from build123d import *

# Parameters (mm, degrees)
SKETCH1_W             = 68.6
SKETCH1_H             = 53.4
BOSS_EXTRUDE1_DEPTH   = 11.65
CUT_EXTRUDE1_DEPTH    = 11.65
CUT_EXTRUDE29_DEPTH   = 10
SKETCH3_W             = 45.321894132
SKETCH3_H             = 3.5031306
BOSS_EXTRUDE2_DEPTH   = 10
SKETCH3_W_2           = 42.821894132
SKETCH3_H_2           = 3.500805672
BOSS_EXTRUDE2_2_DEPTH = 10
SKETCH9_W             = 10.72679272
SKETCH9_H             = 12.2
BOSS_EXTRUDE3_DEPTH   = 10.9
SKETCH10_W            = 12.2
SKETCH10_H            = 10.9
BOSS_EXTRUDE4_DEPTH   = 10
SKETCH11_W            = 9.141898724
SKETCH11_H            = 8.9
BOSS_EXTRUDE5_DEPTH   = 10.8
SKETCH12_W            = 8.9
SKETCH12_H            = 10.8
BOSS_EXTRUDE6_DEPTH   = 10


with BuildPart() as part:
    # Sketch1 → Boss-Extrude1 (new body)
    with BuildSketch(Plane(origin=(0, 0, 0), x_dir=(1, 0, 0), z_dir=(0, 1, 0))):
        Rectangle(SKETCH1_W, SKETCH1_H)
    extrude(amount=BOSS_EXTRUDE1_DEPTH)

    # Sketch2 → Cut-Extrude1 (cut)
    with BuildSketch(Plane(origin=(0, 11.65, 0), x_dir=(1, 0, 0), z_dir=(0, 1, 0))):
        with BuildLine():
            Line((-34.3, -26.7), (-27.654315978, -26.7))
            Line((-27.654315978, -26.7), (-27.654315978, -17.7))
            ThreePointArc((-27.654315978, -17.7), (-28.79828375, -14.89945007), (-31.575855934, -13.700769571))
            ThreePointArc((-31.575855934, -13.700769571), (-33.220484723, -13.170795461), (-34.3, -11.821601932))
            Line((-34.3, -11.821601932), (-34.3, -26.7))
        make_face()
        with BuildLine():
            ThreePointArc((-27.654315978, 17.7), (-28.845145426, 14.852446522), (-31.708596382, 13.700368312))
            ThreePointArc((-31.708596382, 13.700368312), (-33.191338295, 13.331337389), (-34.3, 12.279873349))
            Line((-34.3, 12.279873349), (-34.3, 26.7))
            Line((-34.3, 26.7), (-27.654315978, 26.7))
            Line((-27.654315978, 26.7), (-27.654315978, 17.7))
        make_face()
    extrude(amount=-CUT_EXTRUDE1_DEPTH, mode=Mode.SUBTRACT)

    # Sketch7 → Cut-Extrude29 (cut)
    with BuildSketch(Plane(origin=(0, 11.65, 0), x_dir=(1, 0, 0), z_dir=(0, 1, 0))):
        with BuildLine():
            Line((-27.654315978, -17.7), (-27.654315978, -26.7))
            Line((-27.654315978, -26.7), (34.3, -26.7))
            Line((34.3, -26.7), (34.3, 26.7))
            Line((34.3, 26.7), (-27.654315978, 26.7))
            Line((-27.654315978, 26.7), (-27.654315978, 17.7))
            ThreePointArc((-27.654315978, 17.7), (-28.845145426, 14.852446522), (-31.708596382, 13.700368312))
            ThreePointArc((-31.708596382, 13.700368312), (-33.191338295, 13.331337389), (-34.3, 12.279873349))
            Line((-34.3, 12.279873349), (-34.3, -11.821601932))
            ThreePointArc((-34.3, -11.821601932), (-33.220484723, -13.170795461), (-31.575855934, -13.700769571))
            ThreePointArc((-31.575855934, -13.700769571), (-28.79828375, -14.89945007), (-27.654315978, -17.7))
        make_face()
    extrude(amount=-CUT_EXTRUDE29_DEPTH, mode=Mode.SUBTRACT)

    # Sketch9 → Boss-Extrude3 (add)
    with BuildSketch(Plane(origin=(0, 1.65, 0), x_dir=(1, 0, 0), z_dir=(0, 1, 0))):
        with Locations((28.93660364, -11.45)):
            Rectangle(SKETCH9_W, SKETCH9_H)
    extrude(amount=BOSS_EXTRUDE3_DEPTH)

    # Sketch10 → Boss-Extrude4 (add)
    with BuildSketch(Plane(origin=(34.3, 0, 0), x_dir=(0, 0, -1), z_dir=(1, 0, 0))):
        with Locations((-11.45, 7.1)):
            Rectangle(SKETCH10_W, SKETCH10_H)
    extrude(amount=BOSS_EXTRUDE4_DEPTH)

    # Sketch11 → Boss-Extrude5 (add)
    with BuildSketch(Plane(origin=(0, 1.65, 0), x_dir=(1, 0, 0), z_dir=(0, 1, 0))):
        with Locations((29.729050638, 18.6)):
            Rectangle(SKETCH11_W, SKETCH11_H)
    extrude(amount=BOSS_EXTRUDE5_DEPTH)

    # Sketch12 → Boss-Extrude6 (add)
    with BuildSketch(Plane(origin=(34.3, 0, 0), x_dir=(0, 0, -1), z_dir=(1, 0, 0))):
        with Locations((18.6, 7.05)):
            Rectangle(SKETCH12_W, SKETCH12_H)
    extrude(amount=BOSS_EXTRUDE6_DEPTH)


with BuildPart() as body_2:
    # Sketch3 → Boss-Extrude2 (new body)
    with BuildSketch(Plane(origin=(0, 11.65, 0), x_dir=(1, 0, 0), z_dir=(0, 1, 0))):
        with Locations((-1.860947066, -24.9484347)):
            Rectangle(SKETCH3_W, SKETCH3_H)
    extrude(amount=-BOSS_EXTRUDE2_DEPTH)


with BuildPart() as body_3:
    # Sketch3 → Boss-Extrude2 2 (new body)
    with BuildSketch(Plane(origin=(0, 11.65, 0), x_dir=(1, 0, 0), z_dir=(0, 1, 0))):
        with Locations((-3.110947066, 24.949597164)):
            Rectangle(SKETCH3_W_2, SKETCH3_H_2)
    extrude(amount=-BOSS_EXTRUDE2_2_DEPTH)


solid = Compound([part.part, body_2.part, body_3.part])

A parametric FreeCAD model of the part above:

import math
import FreeCAD as App
import Part
import Sketcher
from FreeCAD import Vector
Q = App.Units.Quantity

doc = App.newDocument("Part")
params = doc.addObject("Spreadsheet::Sheet", "Params")
for row, (alias, value) in enumerate([
    ("sketch1_width", "68.6 mm"),
    ("sketch1_height", "53.4 mm"),
    ("pad1_length", "11.65 mm"),
    ("sketch2_radius", "4 mm"),
    ("sketch2_radius2", "3 mm"),
    ("sketch2_height", "9 mm"),
    ("pocket1_length", "11.65 mm"),
    ("sketch3_radius", "4 mm"),
    ("sketch3_radius2", "3 mm"),
    ("sketch3_height", "9 mm"),
    ("sketch3_height2", "53.4 mm"),
    ("pocket2_length", "10 mm"),
    ("sketch4_height", "12.2 mm"),
    ("pad2_length", "10.9 mm"),
    ("sketch5_width", "10.9 mm"),
    ("sketch5_height", "12.2 mm"),
    ("pad3_length", "10 mm"),
    ("sketch6_height", "8.9 mm"),
    ("pad4_length", "10.8 mm"),
    ("sketch7_width", "10.8 mm"),
    ("sketch7_height", "8.9 mm"),
    ("pad5_length", "10 mm"),
    ("pad6_length", "10 mm"),
    ("pad7_length", "10 mm"),
], start=1):
    params.set(f"A{row}", alias)
    params.set(f"B{row}", "=" + value)
    params.setAlias(f"B{row}", alias)

body = doc.addObject("PartDesign::Body", "Body")

# Sketch on XZ plane
sketch1 = body.newObject("Sketcher::SketchObject", "Sketch")
sketch1.AttachmentSupport = (doc.getObject("XZ_Plane"), [""])
sketch1.MapMode = "FlatFace"
sketch1.addGeometry(Part.LineSegment(Vector(-34, -27, 0), Vector(-34, 27, 0)), False)
sketch1.addGeometry(Part.LineSegment(Vector(-34, 27, 0), Vector(34, 27, 0)), False)
sketch1.addGeometry(Part.LineSegment(Vector(34, 27, 0), Vector(34, -27, 0)), False)
sketch1.addGeometry(Part.LineSegment(Vector(34, -27, 0), Vector(-34, -27, 0)), False)
sketch1.addConstraint(Sketcher.Constraint("Coincident", 0, 2, 1, 1))
sketch1.addConstraint(Sketcher.Constraint("Coincident", 1, 2, 2, 1))
sketch1.addConstraint(Sketcher.Constraint("Coincident", 2, 2, 3, 1))
sketch1.addConstraint(Sketcher.Constraint("Coincident", 3, 2, 0, 1))
sketch1.addConstraint(Sketcher.Constraint("Vertical", 0))
sketch1.addConstraint(Sketcher.Constraint("Horizontal", 1))
sketch1.addConstraint(Sketcher.Constraint("Vertical", 2))
sketch1.addConstraint(Sketcher.Constraint("Horizontal", 3))
sketch1.addConstraint(Sketcher.Constraint("Symmetric", 0, 2, 2, 2, -1, 1))
sketch1.addConstraint(Sketcher.Constraint("DistanceX", 1, 1, 1, 2, Q("68.6 mm")))
sketch1.addConstraint(Sketcher.Constraint("DistanceY", 0, 1, 0, 2, Q("53.4 mm")))
sketch1.setExpression("Constraints[9]", "Params.sketch1_width")
sketch1.setExpression("Constraints[10]", "Params.sketch1_height")
pad1 = body.newObject("PartDesign::Pad", "Pad")
pad1.Profile = sketch1
pad1.setExpression("Length", "Params.pad1_length")
pad1.Reversed = True

# Sketch on XZ plane
sketch2 = body.newObject("Sketcher::SketchObject", "Sketch001")
sketch2.AttachmentSupport = (doc.getObject("XZ_Plane"), [""])
sketch2.MapMode = "FlatFace"
sketch2.AttachmentOffset = App.Placement(Vector(0, 0, -11.65), App.Rotation())
sketch2.addGeometry(Part.LineSegment(Vector(-34.3, 26.7, 0), Vector(-27.7, 26.7, 0)), False)
sketch2.addGeometry(Part.LineSegment(Vector(-27.7, 26.7, 0), Vector(-27.7, 17.7, 0)), False)
sketch2.addGeometry(Part.ArcOfCircle(Part.Circle(Vector(-31.7, 17.7, 0), Vector(0, 0, 1), 4), math.radians(-89), math.radians(0)), False)
sketch2.addGeometry(Part.ArcOfCircle(Part.Circle(Vector(-31.5, 10.7, 0), Vector(0, 0, 1), 3), math.radians(91), math.radians(158)), False)
sketch2.addGeometry(Part.LineSegment(Vector(-34.3, 11.8, 0), Vector(-34.3, 26.7, 0)), False)
sketch2.addGeometry(Part.ArcOfCircle(Part.Circle(Vector(-31.7, -17.7, 0), Vector(0, 0, 1), 4), math.radians(0), math.radians(91)), False)
sketch2.addGeometry(Part.LineSegment(Vector(-27.7, -17.7, 0), Vector(-27.7, -26.7, 0)), False)
sketch2.addGeometry(Part.LineSegment(Vector(-27.7, -26.7, 0), Vector(-34.3, -26.7, 0)), False)
sketch2.addGeometry(Part.LineSegment(Vector(-34.3, -26.7, 0), Vector(-34.3, -12.3, 0)), False)
sketch2.addGeometry(Part.ArcOfCircle(Part.Circle(Vector(-31.7, -10.7, 0), Vector(0, 0, 1), 3), math.radians(-148), math.radians(-89)), False)
sketch2.addConstraint(Sketcher.Constraint("Coincident", 0, 2, 1, 1))
sketch2.addConstraint(Sketcher.Constraint("Tangent", 1, 2, 2, 2))
sketch2.addConstraint(Sketcher.Constraint("Tangent", 2, 1, 3, 1))
sketch2.addConstraint(Sketcher.Constraint("Coincident", 3, 2, 4, 1))
sketch2.addConstraint(Sketcher.Constraint("Coincident", 4, 2, 0, 1))
sketch2.addConstraint(Sketcher.Constraint("Tangent", 5, 1, 6, 1))
sketch2.addConstraint(Sketcher.Constraint("Coincident", 6, 2, 7, 1))
sketch2.addConstraint(Sketcher.Constraint("Coincident", 7, 2, 8, 1))
sketch2.addConstraint(Sketcher.Constraint("Coincident", 8, 2, 9, 1))
sketch2.addConstraint(Sketcher.Constraint("Tangent", 9, 2, 5, 2))
sketch2.addConstraint(Sketcher.Constraint("Horizontal", 0))
sketch2.addConstraint(Sketcher.Constraint("Vertical", 1))
sketch2.addConstraint(Sketcher.Constraint("Vertical", 4))
sketch2.addConstraint(Sketcher.Constraint("Vertical", 6))
sketch2.addConstraint(Sketcher.Constraint("Horizontal", 7))
sketch2.addConstraint(Sketcher.Constraint("Vertical", 8))
sketch2.addConstraint(Sketcher.Constraint("Equal", 2, 5))
sketch2.addConstraint(Sketcher.Constraint("Equal", 3, 9))
sketch2.addConstraint(Sketcher.Constraint("Symmetric", 2, 3, 5, 3, -1))
sketch2.addConstraint(Sketcher.Constraint("Symmetric", 4, 2, 7, 2, -1))
sketch2.addConstraint(Sketcher.Constraint("Radius", 2, Q("4 mm")))
sketch2.addConstraint(Sketcher.Constraint("Radius", 3, Q("3 mm")))
sketch2.addConstraint(Sketcher.Constraint("DistanceY", 1, 2, 1, 1, Q("9 mm")))
sketch2.addConstraint(Sketcher.Constraint("DistanceY", -1, 1, 2, 3, Q("17.7 mm")))
sketch2.addConstraint(Sketcher.Constraint("DistanceX", 3, 2, -1, 1, Q("34.3 mm")))
sketch2.addConstraint(Sketcher.Constraint("DistanceY", 4, 1, 4, 2, Q("14.878398 mm")))
sketch2.addConstraint(Sketcher.Constraint("DistanceX", 0, 1, 0, 2, Q("6.645684 mm")))
sketch2.addConstraint(Sketcher.Constraint("DistanceY", 8, 1, 8, 2, Q("14.420127 mm")))
sketch2.setExpression("Constraints[20]", "Params.sketch2_radius")
sketch2.setExpression("Constraints[21]", "Params.sketch2_radius2")
sketch2.setExpression("Constraints[22]", "Params.sketch2_height")
pocket1 = body.newObject("PartDesign::Pocket", "Pocket")
pocket1.Profile = sketch2
pocket1.setExpression("Length", "Params.pocket1_length")
pocket1.Reversed = True

# Sketch on XZ plane
sketch3 = body.newObject("Sketcher::SketchObject", "Sketch002")
sketch3.AttachmentSupport = (doc.getObject("XZ_Plane"), [""])
sketch3.MapMode = "FlatFace"
sketch3.AttachmentOffset = App.Placement(Vector(0, 0, -11.65), App.Rotation())
sketch3.addGeometry(Part.LineSegment(Vector(-27.7, 17.7, 0), Vector(-27.7, 26.7, 0)), False)
sketch3.addGeometry(Part.LineSegment(Vector(-27.7, 26.7, 0), Vector(34.3, 26.7, 0)), False)
sketch3.addGeometry(Part.LineSegment(Vector(34.3, 26.7, 0), Vector(34.3, -26.7, 0)), False)
sketch3.addGeometry(Part.LineSegment(Vector(34.3, -26.7, 0), Vector(-27.7, -26.7, 0)), False)
sketch3.addGeometry(Part.LineSegment(Vector(-27.7, -26.7, 0), Vector(-27.7, -17.7, 0)), False)
sketch3.addGeometry(Part.ArcOfCircle(Part.Circle(Vector(-31.7, -17.7, 0), Vector(0, 0, 1), 4), math.radians(0), math.radians(91)), False)
sketch3.addGeometry(Part.ArcOfCircle(Part.Circle(Vector(-31.7, -10.7, 0), Vector(0, 0, 1), 3), math.radians(-148), math.radians(-89)), False)
sketch3.addGeometry(Part.LineSegment(Vector(-34.3, -12.3, 0), Vector(-34.3, 11.8, 0)), False)
sketch3.addGeometry(Part.ArcOfCircle(Part.Circle(Vector(-31.5, 10.7, 0), Vector(0, 0, 1), 3), math.radians(91), math.radians(158)), False)
sketch3.addGeometry(Part.ArcOfCircle(Part.Circle(Vector(-31.7, 17.7, 0), Vector(0, 0, 1), 4), math.radians(-89), math.radians(0)), False)
sketch3.addConstraint(Sketcher.Constraint("Coincident", 0, 2, 1, 1))
sketch3.addConstraint(Sketcher.Constraint("Coincident", 1, 2, 2, 1))
sketch3.addConstraint(Sketcher.Constraint("Coincident", 2, 2, 3, 1))
sketch3.addConstraint(Sketcher.Constraint("Coincident", 3, 2, 4, 1))
sketch3.addConstraint(Sketcher.Constraint("Tangent", 4, 2, 5, 1))
sketch3.addConstraint(Sketcher.Constraint("Tangent", 5, 2, 6, 2))
sketch3.addConstraint(Sketcher.Constraint("Coincident", 6, 1, 7, 1))
sketch3.addConstraint(Sketcher.Constraint("Coincident", 7, 2, 8, 2))
sketch3.addConstraint(Sketcher.Constraint("Tangent", 8, 1, 9, 1))
sketch3.addConstraint(Sketcher.Constraint("Tangent", 9, 2, 0, 1))
sketch3.addConstraint(Sketcher.Constraint("Vertical", 0))
sketch3.addConstraint(Sketcher.Constraint("Horizontal", 1))
sketch3.addConstraint(Sketcher.Constraint("Vertical", 2))
sketch3.addConstraint(Sketcher.Constraint("Horizontal", 3))
sketch3.addConstraint(Sketcher.Constraint("Vertical", 4))
sketch3.addConstraint(Sketcher.Constraint("Vertical", 7))
sketch3.addConstraint(Sketcher.Constraint("Equal", 6, 8))
sketch3.addConstraint(Sketcher.Constraint("Equal", 5, 9))
sketch3.addConstraint(Sketcher.Constraint("Symmetric", 5, 3, 9, 3, -1))
sketch3.addConstraint(Sketcher.Constraint("Equal", 0, 4))
sketch3.addConstraint(Sketcher.Constraint("Radius", 5, Q("4 mm")))
sketch3.addConstraint(Sketcher.Constraint("Radius", 6, Q("3 mm")))
sketch3.addConstraint(Sketcher.Constraint("DistanceY", 0, 1, 0, 2, Q("9 mm")))
sketch3.addConstraint(Sketcher.Constraint("DistanceY", 2, 2, 2, 1, Q("53.4 mm")))
sketch3.addConstraint(Sketcher.Constraint("DistanceX", -1, 1, 1, 2, Q("34.3 mm")))
sketch3.addConstraint(Sketcher.Constraint("DistanceX", 6, 1, -1, 1, Q("34.3 mm")))
sketch3.addConstraint(Sketcher.Constraint("DistanceY", -1, 1, 7, 2, Q("11.821602 mm")))
sketch3.addConstraint(Sketcher.Constraint("DistanceX", 1, 1, 1, 2, Q("61.954316 mm")))
sketch3.addConstraint(Sketcher.Constraint("DistanceY", 7, 1, 7, 2, Q("24.101475 mm")))
sketch3.setExpression("Constraints[20]", "Params.sketch3_radius")
sketch3.setExpression("Constraints[21]", "Params.sketch3_radius2")
sketch3.setExpression("Constraints[22]", "Params.sketch3_height")
sketch3.setExpression("Constraints[23]", "Params.sketch3_height2")
pocket2 = body.newObject("PartDesign::Pocket", "Pocket001")
pocket2.Profile = sketch3
pocket2.setExpression("Length", "Params.pocket2_length")
pocket2.Reversed = True

# Sketch on XZ plane
sketch4 = body.newObject("Sketcher::SketchObject", "Sketch003")
sketch4.AttachmentSupport = (doc.getObject("XZ_Plane"), [""])
sketch4.MapMode = "FlatFace"
sketch4.AttachmentOffset = App.Placement(Vector(0, 0, -1.65), App.Rotation())
sketch4.addGeometry(Part.LineSegment(Vector(24, 5, 0), Vector(24, 18, 0)), False)
sketch4.addGeometry(Part.LineSegment(Vector(24, 18, 0), Vector(34, 18, 0)), False)
sketch4.addGeometry(Part.LineSegment(Vector(34, 18, 0), Vector(34, 5, 0)), False)
sketch4.addGeometry(Part.LineSegment(Vector(34, 5, 0), Vector(24, 5, 0)), False)
sketch4.addConstraint(Sketcher.Constraint("Coincident", 0, 2, 1, 1))
sketch4.addConstraint(Sketcher.Constraint("Coincident", 1, 2, 2, 1))
sketch4.addConstraint(Sketcher.Constraint("Coincident", 2, 2, 3, 1))
sketch4.addConstraint(Sketcher.Constraint("Coincident", 3, 2, 0, 1))
sketch4.addConstraint(Sketcher.Constraint("Vertical", 0))
sketch4.addConstraint(Sketcher.Constraint("Horizontal", 1))
sketch4.addConstraint(Sketcher.Constraint("Vertical", 2))
sketch4.addConstraint(Sketcher.Constraint("Horizontal", 3))
sketch4.addConstraint(Sketcher.Constraint("DistanceY", 0, 1, 0, 2, Q("12.2 mm")))
sketch4.addConstraint(Sketcher.Constraint("DistanceX", -1, 1, 1, 2, Q("34.3 mm")))
sketch4.addConstraint(Sketcher.Constraint("DistanceY", -1, 1, 0, 2, Q("17.55 mm")))
sketch4.addConstraint(Sketcher.Constraint("DistanceX", 1, 1, 1, 2, Q("10.726793 mm")))
sketch4.setExpression("Constraints[8]", "Params.sketch4_height")
pad2 = body.newObject("PartDesign::Pad", "Pad001")
pad2.Profile = sketch4
pad2.setExpression("Length", "Params.pad2_length")
pad2.Reversed = True

# Sketch on YZ plane
sketch5 = body.newObject("Sketcher::SketchObject", "Sketch004")
sketch5.AttachmentSupport = (doc.getObject("YZ_Plane"), [""])
sketch5.MapMode = "FlatFace"
sketch5.AttachmentOffset = App.Placement(Vector(0, 0, 34.3), App.Rotation())
sketch5.addGeometry(Part.LineSegment(Vector(13, 18, 0), Vector(2, 18, 0)), False)
sketch5.addGeometry(Part.LineSegment(Vector(2, 18, 0), Vector(2, 5, 0)), False)
sketch5.addGeometry(Part.LineSegment(Vector(2, 5, 0), Vector(13, 5, 0)), False)
sketch5.addGeometry(Part.LineSegment(Vector(13, 5, 0), Vector(13, 18, 0)), False)
sketch5.addConstraint(Sketcher.Constraint("Coincident", 0, 2, 1, 1))
sketch5.addConstraint(Sketcher.Constraint("Coincident", 1, 2, 2, 1))
sketch5.addConstraint(Sketcher.Constraint("Coincident", 2, 2, 3, 1))
sketch5.addConstraint(Sketcher.Constraint("Coincident", 3, 2, 0, 1))
sketch5.addConstraint(Sketcher.Constraint("Horizontal", 0))
sketch5.addConstraint(Sketcher.Constraint("Vertical", 1))
sketch5.addConstraint(Sketcher.Constraint("Horizontal", 2))
sketch5.addConstraint(Sketcher.Constraint("Vertical", 3))
sketch5.addConstraint(Sketcher.Constraint("DistanceX", 0, 2, 0, 1, Q("10.9 mm")))
sketch5.addConstraint(Sketcher.Constraint("DistanceY", 1, 2, 1, 1, Q("12.2 mm")))
sketch5.addConstraint(Sketcher.Constraint("DistanceX", -1, 1, 0, 2, Q("1.65 mm")))
sketch5.addConstraint(Sketcher.Constraint("DistanceY", -1, 1, 0, 2, Q("17.55 mm")))
sketch5.setExpression("Constraints[8]", "Params.sketch5_width")
sketch5.setExpression("Constraints[9]", "Params.sketch5_height")
pad3 = body.newObject("PartDesign::Pad", "Pad002")
pad3.Profile = sketch5
pad3.setExpression("Length", "Params.pad3_length")

# Sketch on XZ plane
sketch6 = body.newObject("Sketcher::SketchObject", "Sketch005")
sketch6.AttachmentSupport = (doc.getObject("XZ_Plane"), [""])
sketch6.MapMode = "FlatFace"
sketch6.AttachmentOffset = App.Placement(Vector(0, 0, -1.65), App.Rotation())
sketch6.addGeometry(Part.LineSegment(Vector(25, -23, 0), Vector(25, -14, 0)), False)
sketch6.addGeometry(Part.LineSegment(Vector(25, -14, 0), Vector(34, -14, 0)), False)
sketch6.addGeometry(Part.LineSegment(Vector(34, -14, 0), Vector(34, -23, 0)), False)
sketch6.addGeometry(Part.LineSegment(Vector(34, -23, 0), Vector(25, -23, 0)), False)
sketch6.addConstraint(Sketcher.Constraint("Coincident", 0, 2, 1, 1))
sketch6.addConstraint(Sketcher.Constraint("Coincident", 1, 2, 2, 1))
sketch6.addConstraint(Sketcher.Constraint("Coincident", 2, 2, 3, 1))
sketch6.addConstraint(Sketcher.Constraint("Coincident", 3, 2, 0, 1))
sketch6.addConstraint(Sketcher.Constraint("Vertical", 0))
sketch6.addConstraint(Sketcher.Constraint("Horizontal", 1))
sketch6.addConstraint(Sketcher.Constraint("Vertical", 2))
sketch6.addConstraint(Sketcher.Constraint("Horizontal", 3))
sketch6.addConstraint(Sketcher.Constraint("DistanceY", 0, 1, 0, 2, Q("8.9 mm")))
sketch6.addConstraint(Sketcher.Constraint("DistanceX", -1, 1, 1, 2, Q("34.3 mm")))
sketch6.addConstraint(Sketcher.Constraint("DistanceY", 0, 2, -1, 1, Q("14.15 mm")))
sketch6.addConstraint(Sketcher.Constraint("DistanceX", 1, 1, 1, 2, Q("9.141899 mm")))
sketch6.setExpression("Constraints[8]", "Params.sketch6_height")
pad4 = body.newObject("PartDesign::Pad", "Pad003")
pad4.Profile = sketch6
pad4.setExpression("Length", "Params.pad4_length")
pad4.Reversed = True

# Sketch on YZ plane
sketch7 = body.newObject("Sketcher::SketchObject", "Sketch006")
sketch7.AttachmentSupport = (doc.getObject("YZ_Plane"), [""])
sketch7.MapMode = "FlatFace"
sketch7.AttachmentOffset = App.Placement(Vector(0, 0, 34.3), App.Rotation())
sketch7.addGeometry(Part.LineSegment(Vector(12, -14, 0), Vector(2, -14, 0)), False)
sketch7.addGeometry(Part.LineSegment(Vector(2, -14, 0), Vector(2, -23, 0)), False)
sketch7.addGeometry(Part.LineSegment(Vector(2, -23, 0), Vector(12, -23, 0)), False)
sketch7.addGeometry(Part.LineSegment(Vector(12, -23, 0), Vector(12, -14, 0)), False)
sketch7.addConstraint(Sketcher.Constraint("Coincident", 0, 2, 1, 1))
sketch7.addConstraint(Sketcher.Constraint("Coincident", 1, 2, 2, 1))
sketch7.addConstraint(Sketcher.Constraint("Coincident", 2, 2, 3, 1))
sketch7.addConstraint(Sketcher.Constraint("Coincident", 3, 2, 0, 1))
sketch7.addConstraint(Sketcher.Constraint("Horizontal", 0))
sketch7.addConstraint(Sketcher.Constraint("Vertical", 1))
sketch7.addConstraint(Sketcher.Constraint("Horizontal", 2))
sketch7.addConstraint(Sketcher.Constraint("Vertical", 3))
sketch7.addConstraint(Sketcher.Constraint("DistanceX", 0, 2, 0, 1, Q("10.8 mm")))
sketch7.addConstraint(Sketcher.Constraint("DistanceY", 1, 2, 1, 1, Q("8.9 mm")))
sketch7.addConstraint(Sketcher.Constraint("DistanceX", -1, 1, 0, 2, Q("1.65 mm")))
sketch7.addConstraint(Sketcher.Constraint("DistanceY", 0, 2, -1, 1, Q("14.15 mm")))
sketch7.setExpression("Constraints[8]", "Params.sketch7_width")
sketch7.setExpression("Constraints[9]", "Params.sketch7_height")
pad5 = body.newObject("PartDesign::Pad", "Pad004")
pad5.Profile = sketch7
pad5.setExpression("Length", "Params.pad5_length")
body2 = doc.addObject("PartDesign::Body", "Body001")

# Sketch on XZ plane
sketch8 = body2.newObject("Sketcher::SketchObject", "Sketch007")
sketch8.AttachmentSupport = (doc.getObject("XZ_Plane001"), [""])
sketch8.MapMode = "FlatFace"
sketch8.AttachmentOffset = App.Placement(Vector(0, 0, -11.65), App.Rotation())
sketch8.addGeometry(Part.LineSegment(Vector(-24.5, 23.2, 0), Vector(-24.5, 26.7, 0)), False)
sketch8.addGeometry(Part.LineSegment(Vector(-24.5, 26.7, 0), Vector(20.8, 26.7, 0)), False)
sketch8.addGeometry(Part.LineSegment(Vector(20.8, 26.7, 0), Vector(20.8, 23.2, 0)), False)
sketch8.addGeometry(Part.LineSegment(Vector(20.8, 23.2, 0), Vector(-24.5, 23.2, 0)), False)
sketch8.addConstraint(Sketcher.Constraint("Coincident", 0, 2, 1, 1))
sketch8.addConstraint(Sketcher.Constraint("Coincident", 1, 2, 2, 1))
sketch8.addConstraint(Sketcher.Constraint("Coincident", 2, 2, 3, 1))
sketch8.addConstraint(Sketcher.Constraint("Coincident", 3, 2, 0, 1))
sketch8.addConstraint(Sketcher.Constraint("Vertical", 0))
sketch8.addConstraint(Sketcher.Constraint("Horizontal", 1))
sketch8.addConstraint(Sketcher.Constraint("Vertical", 2))
sketch8.addConstraint(Sketcher.Constraint("Horizontal", 3))
sketch8.addConstraint(Sketcher.Constraint("DistanceY", -1, 1, 0, 2, Q("26.7 mm")))
sketch8.addConstraint(Sketcher.Constraint("DistanceX", -1, 1, 1, 2, Q("20.8 mm")))
sketch8.addConstraint(Sketcher.Constraint("DistanceY", 0, 1, 0, 2, Q("3.503131 mm")))
sketch8.addConstraint(Sketcher.Constraint("DistanceX", 1, 1, 1, 2, Q("45.321894 mm")))
pad6 = body2.newObject("PartDesign::Pad", "Pad005")
pad6.Profile = sketch8
pad6.setExpression("Length", "Params.pad6_length")
body3 = doc.addObject("PartDesign::Body", "Body002")

# Sketch on XZ plane
sketch9 = body3.newObject("Sketcher::SketchObject", "Sketch008")
sketch9.AttachmentSupport = (doc.getObject("XZ_Plane002"), [""])
sketch9.MapMode = "FlatFace"
sketch9.AttachmentOffset = App.Placement(Vector(0, 0, -11.65), App.Rotation())
sketch9.addGeometry(Part.LineSegment(Vector(-24.5, -26.7, 0), Vector(-24.5, -23.2, 0)), False)
sketch9.addGeometry(Part.LineSegment(Vector(-24.5, -23.2, 0), Vector(18.3, -23.2, 0)), False)
sketch9.addGeometry(Part.LineSegment(Vector(18.3, -23.2, 0), Vector(18.3, -26.7, 0)), False)
sketch9.addGeometry(Part.LineSegment(Vector(18.3, -26.7, 0), Vector(-24.5, -26.7, 0)), False)
sketch9.addConstraint(Sketcher.Constraint("Coincident", 0, 2, 1, 1))
sketch9.addConstraint(Sketcher.Constraint("Coincident", 1, 2, 2, 1))
sketch9.addConstraint(Sketcher.Constraint("Coincident", 2, 2, 3, 1))
sketch9.addConstraint(Sketcher.Constraint("Coincident", 3, 2, 0, 1))
sketch9.addConstraint(Sketcher.Constraint("Vertical", 0))
sketch9.addConstraint(Sketcher.Constraint("Horizontal", 1))
sketch9.addConstraint(Sketcher.Constraint("Vertical", 2))
sketch9.addConstraint(Sketcher.Constraint("Horizontal", 3))
sketch9.addConstraint(Sketcher.Constraint("DistanceX", -1, 1, 1, 2, Q("18.3 mm")))
sketch9.addConstraint(Sketcher.Constraint("DistanceY", 2, 2, -1, 1, Q("26.7 mm")))
sketch9.addConstraint(Sketcher.Constraint("DistanceX", 1, 1, 1, 2, Q("42.821894 mm")))
sketch9.addConstraint(Sketcher.Constraint("DistanceY", 0, 1, 0, 2, Q("3.500806 mm")))
pad7 = body3.newObject("PartDesign::Pad", "Pad006")
pad7.Profile = sketch9
pad7.setExpression("Length", "Params.pad7_length")

doc.recompute()
